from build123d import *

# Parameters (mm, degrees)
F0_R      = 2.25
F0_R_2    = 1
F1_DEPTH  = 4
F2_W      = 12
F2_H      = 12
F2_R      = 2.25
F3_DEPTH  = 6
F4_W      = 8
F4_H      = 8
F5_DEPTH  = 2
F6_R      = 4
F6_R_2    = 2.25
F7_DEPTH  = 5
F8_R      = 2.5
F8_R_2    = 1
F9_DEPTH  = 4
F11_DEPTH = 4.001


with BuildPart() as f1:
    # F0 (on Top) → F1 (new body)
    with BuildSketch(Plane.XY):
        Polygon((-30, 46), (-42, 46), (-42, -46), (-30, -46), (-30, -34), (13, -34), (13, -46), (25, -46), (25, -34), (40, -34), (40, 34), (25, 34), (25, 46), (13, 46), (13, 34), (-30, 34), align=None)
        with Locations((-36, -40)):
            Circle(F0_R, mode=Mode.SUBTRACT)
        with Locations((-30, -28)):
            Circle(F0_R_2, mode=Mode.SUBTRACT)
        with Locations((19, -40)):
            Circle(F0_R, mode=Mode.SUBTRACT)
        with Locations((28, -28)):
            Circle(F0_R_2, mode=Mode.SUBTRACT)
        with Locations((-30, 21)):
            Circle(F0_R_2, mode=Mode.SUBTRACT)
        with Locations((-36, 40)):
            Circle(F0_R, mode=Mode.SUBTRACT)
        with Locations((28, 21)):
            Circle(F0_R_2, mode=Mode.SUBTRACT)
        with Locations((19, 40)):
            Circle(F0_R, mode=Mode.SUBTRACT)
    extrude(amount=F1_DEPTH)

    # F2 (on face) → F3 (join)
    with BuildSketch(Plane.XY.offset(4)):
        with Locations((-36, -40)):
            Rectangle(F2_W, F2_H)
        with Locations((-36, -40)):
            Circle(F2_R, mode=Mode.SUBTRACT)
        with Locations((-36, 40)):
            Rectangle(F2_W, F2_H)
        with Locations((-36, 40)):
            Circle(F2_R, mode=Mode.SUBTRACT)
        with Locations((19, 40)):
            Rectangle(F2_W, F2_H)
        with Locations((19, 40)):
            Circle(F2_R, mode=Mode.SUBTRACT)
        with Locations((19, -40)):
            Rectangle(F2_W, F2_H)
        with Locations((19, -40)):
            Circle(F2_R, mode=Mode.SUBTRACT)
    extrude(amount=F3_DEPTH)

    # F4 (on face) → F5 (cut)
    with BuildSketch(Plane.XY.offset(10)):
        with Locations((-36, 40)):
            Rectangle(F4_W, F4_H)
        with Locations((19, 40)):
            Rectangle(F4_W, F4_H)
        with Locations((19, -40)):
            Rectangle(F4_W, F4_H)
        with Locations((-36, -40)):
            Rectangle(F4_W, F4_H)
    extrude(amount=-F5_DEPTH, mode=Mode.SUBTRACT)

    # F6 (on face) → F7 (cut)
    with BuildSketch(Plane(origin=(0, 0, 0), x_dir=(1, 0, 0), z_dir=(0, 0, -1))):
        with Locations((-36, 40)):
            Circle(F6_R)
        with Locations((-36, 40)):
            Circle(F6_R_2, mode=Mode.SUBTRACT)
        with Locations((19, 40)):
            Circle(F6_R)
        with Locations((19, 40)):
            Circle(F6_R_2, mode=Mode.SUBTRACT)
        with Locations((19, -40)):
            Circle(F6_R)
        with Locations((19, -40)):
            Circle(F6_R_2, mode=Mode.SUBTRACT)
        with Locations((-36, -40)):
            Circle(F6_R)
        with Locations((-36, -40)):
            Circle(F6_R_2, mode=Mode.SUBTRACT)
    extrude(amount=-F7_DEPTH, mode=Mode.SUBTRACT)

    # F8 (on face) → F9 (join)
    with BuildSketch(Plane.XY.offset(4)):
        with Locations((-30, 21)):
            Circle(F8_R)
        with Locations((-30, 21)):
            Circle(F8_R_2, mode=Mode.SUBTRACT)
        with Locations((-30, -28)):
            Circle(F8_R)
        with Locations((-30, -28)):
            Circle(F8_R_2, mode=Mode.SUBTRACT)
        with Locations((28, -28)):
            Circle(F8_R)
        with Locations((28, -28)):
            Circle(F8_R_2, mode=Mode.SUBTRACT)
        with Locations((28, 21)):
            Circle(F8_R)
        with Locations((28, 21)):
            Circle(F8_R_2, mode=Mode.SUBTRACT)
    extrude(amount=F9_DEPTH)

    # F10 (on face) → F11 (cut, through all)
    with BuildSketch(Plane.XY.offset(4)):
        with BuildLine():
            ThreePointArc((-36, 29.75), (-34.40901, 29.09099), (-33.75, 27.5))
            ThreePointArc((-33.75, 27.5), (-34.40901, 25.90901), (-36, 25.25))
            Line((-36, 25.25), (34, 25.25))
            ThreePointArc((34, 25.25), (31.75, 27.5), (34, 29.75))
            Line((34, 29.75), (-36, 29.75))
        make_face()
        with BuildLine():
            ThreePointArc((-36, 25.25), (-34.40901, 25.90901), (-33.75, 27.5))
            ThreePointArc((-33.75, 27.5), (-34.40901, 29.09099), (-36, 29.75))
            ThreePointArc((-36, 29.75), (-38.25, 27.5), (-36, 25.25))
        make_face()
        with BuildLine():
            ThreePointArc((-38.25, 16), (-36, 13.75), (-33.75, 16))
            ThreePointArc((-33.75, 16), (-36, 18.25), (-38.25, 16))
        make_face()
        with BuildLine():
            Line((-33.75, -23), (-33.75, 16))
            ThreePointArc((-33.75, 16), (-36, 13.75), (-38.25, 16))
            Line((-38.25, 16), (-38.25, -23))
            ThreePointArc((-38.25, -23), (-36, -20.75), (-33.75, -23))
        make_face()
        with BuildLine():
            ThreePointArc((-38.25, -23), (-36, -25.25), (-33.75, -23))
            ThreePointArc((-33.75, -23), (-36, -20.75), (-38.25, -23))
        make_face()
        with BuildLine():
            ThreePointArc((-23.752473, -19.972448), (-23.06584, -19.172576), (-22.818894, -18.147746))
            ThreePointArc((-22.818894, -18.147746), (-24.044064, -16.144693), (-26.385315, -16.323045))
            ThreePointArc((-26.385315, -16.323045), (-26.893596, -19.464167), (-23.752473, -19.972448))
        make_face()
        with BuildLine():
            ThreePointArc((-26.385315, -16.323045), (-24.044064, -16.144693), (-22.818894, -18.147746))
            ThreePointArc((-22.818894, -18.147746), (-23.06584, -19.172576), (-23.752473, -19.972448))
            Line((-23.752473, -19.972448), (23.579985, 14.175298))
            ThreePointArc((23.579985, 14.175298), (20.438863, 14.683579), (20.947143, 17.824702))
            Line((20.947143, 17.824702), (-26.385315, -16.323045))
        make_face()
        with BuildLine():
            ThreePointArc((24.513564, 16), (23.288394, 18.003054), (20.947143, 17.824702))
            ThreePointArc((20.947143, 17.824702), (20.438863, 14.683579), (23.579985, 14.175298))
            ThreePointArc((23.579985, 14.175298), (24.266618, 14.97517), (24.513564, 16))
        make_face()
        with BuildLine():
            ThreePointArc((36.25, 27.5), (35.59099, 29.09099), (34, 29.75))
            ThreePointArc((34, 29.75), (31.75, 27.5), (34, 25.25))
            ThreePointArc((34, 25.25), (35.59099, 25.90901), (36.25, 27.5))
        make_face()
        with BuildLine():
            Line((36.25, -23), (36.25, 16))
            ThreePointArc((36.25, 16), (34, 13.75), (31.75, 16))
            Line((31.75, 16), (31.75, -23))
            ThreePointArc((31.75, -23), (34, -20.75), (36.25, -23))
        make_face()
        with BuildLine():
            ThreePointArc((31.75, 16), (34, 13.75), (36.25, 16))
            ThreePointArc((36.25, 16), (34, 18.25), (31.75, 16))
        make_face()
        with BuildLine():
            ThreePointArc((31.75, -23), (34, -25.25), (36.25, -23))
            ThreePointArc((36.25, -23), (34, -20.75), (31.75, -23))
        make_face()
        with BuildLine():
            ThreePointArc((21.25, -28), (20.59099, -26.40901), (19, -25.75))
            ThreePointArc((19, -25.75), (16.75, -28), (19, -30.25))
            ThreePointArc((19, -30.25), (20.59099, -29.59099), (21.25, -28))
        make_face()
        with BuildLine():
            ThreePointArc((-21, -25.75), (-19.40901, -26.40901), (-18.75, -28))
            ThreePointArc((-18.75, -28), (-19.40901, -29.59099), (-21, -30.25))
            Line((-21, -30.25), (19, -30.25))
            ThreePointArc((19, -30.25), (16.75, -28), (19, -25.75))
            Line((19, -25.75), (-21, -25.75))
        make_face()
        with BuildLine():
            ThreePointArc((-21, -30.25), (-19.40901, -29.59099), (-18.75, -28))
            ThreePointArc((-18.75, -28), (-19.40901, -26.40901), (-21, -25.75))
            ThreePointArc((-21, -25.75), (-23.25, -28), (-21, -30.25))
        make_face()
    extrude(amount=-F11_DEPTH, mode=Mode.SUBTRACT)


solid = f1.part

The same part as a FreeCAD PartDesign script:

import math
import FreeCAD as App
import Part
import Sketcher


def add_polygon(sketch, points):
    """Adds a closed chain of lines whose ends are joined by coincident constraints."""
    first, n = sketch.GeometryCount, len(points)
    for a, b in zip(points, points[1:] + points[:1]):
        sketch.addGeometry(Part.LineSegment(App.Vector(*a, 0), App.Vector(*b, 0)), False)
    for i in range(n):
        sketch.addConstraint(Sketcher.Constraint("Coincident", first + i, 2, first + (i + 1) % n, 1))

doc = App.newDocument("Part")
body = doc.addObject("PartDesign::Body", "Body")

sketch1 = body.newObject("Sketcher::SketchObject", "Sketch")
sketch1.AttachmentSupport = (doc.getObject("XY_Plane"), [""])
sketch1.MapMode = "FlatFace"
add_polygon(sketch1, [(-30, 46), (-42, 46), (-42, -46), (-30, -46), (-30, -34), (13, -34), (13, -46), (25, -46), (25, -34), (40, -34), (40, 34), (25, 34), (25, 46), (13, 46), (13, 34), (-30, 34)])
sketch1.addGeometry(Part.Circle(App.Vector(-36, -40, 0), App.Vector(0, 0, 1), 2.2), False)
sketch1.addGeometry(Part.Circle(App.Vector(-30, -28, 0), App.Vector(0, 0, 1), 1), False)
sketch1.addGeometry(Part.Circle(App.Vector(19, -40, 0), App.Vector(0, 0, 1), 2.2), False)
sketch1.addGeometry(Part.Circle(App.Vector(28, -28, 0), App.Vector(0, 0, 1), 1), False)
sketch1.addGeometry(Part.Circle(App.Vector(-30, 21, 0), App.Vector(0, 0, 1), 1), False)
sketch1.addGeometry(Part.Circle(App.Vector(-36, 40, 0), App.Vector(0, 0, 1), 2.2), False)
sketch1.addGeometry(Part.Circle(App.Vector(28, 21, 0), App.Vector(0, 0, 1), 1), False)
sketch1.addGeometry(Part.Circle(App.Vector(19, 40, 0), App.Vector(0, 0, 1), 2.2), False)
sketch1.addConstraint([
    Sketcher.Constraint("Horizontal", 0),
    Sketcher.Constraint("Vertical", 1),
    Sketcher.Constraint("Horizontal", 2),
    Sketcher.Constraint("Vertical", 3),
    Sketcher.Constraint("Horizontal", 4),
    Sketcher.Constraint("Vertical", 5),
    Sketcher.Constraint("Horizontal", 6),
    Sketcher.Constraint("Vertical", 7),
    Sketcher.Constraint("Horizontal", 8),
    Sketcher.Constraint("Vertical", 9),
    Sketcher.Constraint("Horizontal", 10),
    Sketcher.Constraint("Vertical", 11),
    Sketcher.Constraint("Horizontal", 12),
    Sketcher.Constraint("Vertical", 13),
    Sketcher.Constraint("Horizontal", 14),
    Sketcher.Constraint("Vertical", 15),
    Sketcher.Constraint("Equal", 16, 18),
    Sketcher.Constraint("Equal", 17, 19),
    Sketcher.Constraint("Equal", 19, 20),
    Sketcher.Constraint("Equal", 18, 21),
    Sketcher.Constraint("Equal", 20, 22),
    Sketcher.Constraint("Equal", 21, 23),
    Sketcher.Constraint("Symmetric", 16, 3, 21, 3, -1),
    Sketcher.Constraint("Symmetric", 18, 3, 23, 3, -1),
    Sketcher.Constraint("Symmetric", 7, 2, 10, 2, -1),
    Sketcher.Constraint("Symmetric", 5, 2, 12, 2, -1),
    Sketcher.Constraint("Symmetric", 3, 2, 14, 2, -1),
    Sketcher.Constraint("Horizontal", 16, 3, 18, 3),
    Sketcher.Constraint("Horizontal", 17, 3, 19, 3),
    Sketcher.Constraint("Horizontal", 20, 3, 22, 3),
    Sketcher.Constraint("Horizontal", 2, 2, 5, 2),
    Sketcher.Constraint("Horizontal", 4, 2, 7, 2),
    Sketcher.Constraint("Horizontal", 0, 2, 11, 2),
    Sketcher.Constraint("Vertical", 17, 3, 20, 3),
    Sketcher.Constraint("Vertical", 19, 3, 22, 3),
    Sketcher.Constraint("Vertical", 20, 3, 2, 2),
    Sketcher.Constraint("Equal", 2, 6),
    Sketcher.Constraint("Equal", 12, 3),
    Sketcher.Constraint("Diameter", 17, 2.0),
    Sketcher.Constraint("Diameter", 16, 4.5),
    Sketcher.Constraint("DistanceX", 0, 2, 0, 1, 12.0),
    Sketcher.Constraint("DistanceX", 4, 1, 4, 2, 43.0),
    Sketcher.Constraint("DistanceX", 8, 1, 8, 2, 15.0),
    Sketcher.Constraint("DistanceY", 1, 2, 1, 1, 92.0),
    Sketcher.Constraint("DistanceX", 16, 3, -1, 1, 36.0),
    Sketcher.Constraint("DistanceY", 16, 3, -1, 1, 40.0),
    Sketcher.Constraint("DistanceX", 17, 3, -1, 1, 30.0),
    Sketcher.Constraint("DistanceY", 17, 3, -1, 1, 28.0),
    Sketcher.Constraint("DistanceX", -1, 1, 18, 3, 19.0),
    Sketcher.Constraint("DistanceX", -1, 1, 19, 3, 28.0),
    Sketcher.Constraint("DistanceY", -1, 1, 20, 3, 21.0),
])
pad1 = body.newObject("PartDesign::Pad", "Pad")
pad1.Profile = sketch1
pad1.Length = 4

sketch2 = body.newObject("Sketcher::SketchObject", "Sketch001")
sketch2.AttachmentSupport = (doc.getObject("XY_Plane"), [""])
sketch2.MapMode = "FlatFace"
sketch2.AttachmentOffset = App.Placement(App.Vector(0, 0, 4), App.Rotation())
add_polygon(sketch2, [(-42, -34), (-42, -46), (-30, -46), (-30, -34)])
sketch2.addGeometry(Part.Circle(App.Vector(-36, -40, 0), App.Vector(0, 0, 1), 2.2), False)
add_polygon(sketch2, [(-42, 46), (-42, 34), (-30, 34), (-30, 46)])
sketch2.addGeometry(Part.Circle(App.Vector(-36, 40, 0), App.Vector(0, 0, 1), 2.2), False)
add_polygon(sketch2, [(13, 46), (13, 34), (25, 34), (25, 46)])
sketch2.addGeometry(Part.Circle(App.Vector(19, 40, 0), App.Vector(0, 0, 1), 2.2), False)
add_polygon(sketch2, [(13, -34), (13, -46), (25, -46), (25, -34)])
sketch2.addGeometry(Part.Circle(App.Vector(19, -40, 0), App.Vector(0, 0, 1), 2.2), False)
sketch2.addConstraint([
    Sketcher.Constraint("Vertical", 0),
    Sketcher.Constraint("Horizontal", 1),
    Sketcher.Constraint("Vertical", 2),
    Sketcher.Constraint("Horizontal", 3),
    Sketcher.Constraint("Vertical", 5),
    Sketcher.Constraint("Horizontal", 6),
    Sketcher.Constraint("Vertical", 7),
    Sketcher.Constraint("Horizontal", 8),
    Sketcher.Constraint("Vertical", 10),
    Sketcher.Constraint("Horizontal", 11),
    Sketcher.Constraint("Vertical", 12),
    Sketcher.Constraint("Horizontal", 13),
    Sketcher.Constraint("Vertical", 15),
    Sketcher.Constraint("Horizontal", 16),
    Sketcher.Constraint("Vertical", 17),
    Sketcher.Constraint("Horizontal", 18),
    Sketcher.Constraint("Equal", 4, 9),
    Sketcher.Constraint("Equal", 9, 14),
    Sketcher.Constraint("Equal", 14, 19),
    Sketcher.Constraint("Symmetric", 4, 3, 9, 3, -1),
    Sketcher.Constraint("Symmetric", 14, 3, 19, 3, -1),
    Sketcher.Constraint("Symmetric", 3, 2, 5, 2, -1),
    Sketcher.Constraint("Symmetric", 1, 2, 7, 2, -1),
    Sketcher.Constraint("Symmetric", 13, 2, 15, 2, -1),
    Sketcher.Constraint("Symmetric", 11, 2, 17, 2, -1),
    Sketcher.Constraint("Horizontal", 9, 3, 14, 3),
    Sketcher.Constraint("Horizontal", 6, 2, 10, 2),
    Sketcher.Constraint("Horizontal", 8, 2, 12, 2),
    Sketcher.Constraint("Equal", 8, 11),
    Sketcher.Constraint("Equal", 18, 0),
    Sketcher.Constraint("Diameter", 4, 4.5),
    Sketcher.Constraint("DistanceX", 1, 1, 1, 2, 12.0),
    Sketcher.Constraint("DistanceX", 4, 3, -1, 1, 36.0),
    Sketcher.Constraint("DistanceY", 4, 3, -1, 1, 40.0),
    Sketcher.Constraint("DistanceX", -1, 1, 14, 3, 19.0),
    Sketcher.Constraint("DistanceX", 0, 2, -1, 1, 42.0),
    Sketcher.Constraint("DistanceY", 0, 2, -1, 1, 46.0),
    Sketcher.Constraint("DistanceX", -1, 1, 10, 2, 13.0),
])
pad2 = body.newObject("PartDesign::Pad", "Pad001")
pad2.Profile = sketch2
pad2.Length = 6

sketch3 = body.newObject("Sketcher::SketchObject", "Sketch002")
sketch3.AttachmentSupport = (doc.getObject("XY_Plane"), [""])
sketch3.MapMode = "FlatFace"
sketch3.AttachmentOffset = App.Placement(App.Vector(0, 0, 10), App.Rotation())
add_polygon(sketch3, [(-40, 44), (-40, 36), (-32, 36), (-32, 44)])
add_polygon(sketch3, [(15, 44), (15, 36), (23, 36), (23, 44)])
add_polygon(sketch3, [(15, -36), (15, -44), (23, -44), (23, -36)])
add_polygon(sketch3, [(-40, -36), (-40, -44), (-32, -44), (-32, -36)])
sketch3.addConstraint([
    Sketcher.Constraint("Vertical", 0),
    Sketcher.Constraint("Horizontal", 1),
    Sketcher.Constraint("Vertical", 2),
    Sketcher.Constraint("Horizontal", 3),
    Sketcher.Constraint("Vertical", 4),
    Sketcher.Constraint("Horizontal", 5),
    Sketcher.Constraint("Vertical", 6),
    Sketcher.Constraint("Horizontal", 7),
    Sketcher.Constraint("Vertical", 8),
    Sketcher.Constraint("Horizontal", 9),
    Sketcher.Constraint("Vertical", 10),
    Sketcher.Constraint("Horizontal", 11),
    Sketcher.Constraint("Vertical", 12),
    Sketcher.Constraint("Horizontal", 13),
    Sketcher.Constraint("Vertical", 14),
    Sketcher.Constraint("Horizontal", 15),
    Sketcher.Constraint("Symmetric", 7, 2, 8, 2, -1),
    Sketcher.Constraint("Symmetric", 5, 2, 10, 2, -1),
    Sketcher.Constraint("Symmetric", 3, 2, 12, 2, -1),
    Sketcher.Constraint("Symmetric", 1, 2, 14, 2, -1),
    Sketcher.Constraint("Horizontal", 1, 2, 4, 2),
    Sketcher.Constraint("Horizontal", 3, 2, 6, 2),
    Sketcher.Constraint("Equal", 3, 5),
    Sketcher.Constraint("Equal", 15, 0),
    Sketcher.Constraint("DistanceX", 1, 1, 1, 2, 8.0),
    Sketcher.Constraint("DistanceX", 0, 2, -1, 1, 40.0),
    Sketcher.Constraint("DistanceY", -1, 1, 0, 2, 36.0),
    Sketcher.Constraint("DistanceX", -1, 1, 4, 2, 15.0),
])
pocket1 = body.newObject("PartDesign::Pocket", "Pocket")
pocket1.Profile = sketch3
pocket1.Length = 2

sketch4 = body.newObject("Sketcher::SketchObject", "Sketch003")
sketch4.AttachmentSupport = (doc.getObject("XY_Plane"), [""])
sketch4.MapMode = "FlatFace"
sketch4.addGeometry([
    Part.Circle(App.Vector(-36, -40, 0), App.Vector(0, 0, 1), 4),
    Part.Circle(App.Vector(-36, -40, 0), App.Vector(0, 0, 1), 2.2),
    Part.Circle(App.Vector(19, -40, 0), App.Vector(0, 0, 1), 4),
    Part.Circle(App.Vector(19, -40, 0), App.Vector(0, 0, 1), 2.2),
    Part.Circle(App.Vector(19, 40, 0), App.Vector(0, 0, 1), 4),
    Part.Circle(App.Vector(19, 40, 0), App.Vector(0, 0, 1), 2.2),
    Part.Circle(App.Vector(-36, 40, 0), App.Vector(0, 0, 1), 4),
    Part.Circle(App.Vector(-36, 40, 0), App.Vector(0, 0, 1), 2.2),
], False)
sketch4.addConstraint([
    Sketcher.Constraint("Coincident", 1, 3, 0, 3),
    Sketcher.Constraint("Coincident", 3, 3, 2, 3),
    Sketcher.Constraint("Coincident", 5, 3, 4, 3),
    Sketcher.Constraint("Coincident", 7, 3, 6, 3),
    Sketcher.Constraint("Equal", 0, 2),
    Sketcher.Constraint("Equal", 1, 3),
    Sketcher.Constraint("Equal", 2, 4),
    Sketcher.Constraint("Equal", 3, 5),
    Sketcher.Constraint("Equal", 4, 6),
    Sketcher.Constraint("Equal", 5, 7),
    Sketcher.Constraint("Symmetric", 2, 3, 4, 3, -1),
    Sketcher.Constraint("Symmetric", 0, 3, 6, 3, -1),
    Sketcher.Constraint("Horizontal", 1, 3, 2, 3),
    Sketcher.Constraint("Diameter", 0, 8.0),
    Sketcher.Constraint("Diameter", 1, 4.5),
    Sketcher.Constraint("DistanceX", 0, 3, -1, 1, 36.0),
    Sketcher.Constraint("DistanceY", 0, 3, -1, 1, 40.0),
    Sketcher.Constraint("DistanceX", -1, 1, 2, 3, 19.0),
])
pocket2 = body.newObject("PartDesign::Pocket", "Pocket001")
pocket2.Profile = sketch4
pocket2.Length = 5
pocket2.Reversed = True

sketch5 = body.newObject("Sketcher::SketchObject", "Sketch004")
sketch5.AttachmentSupport = (doc.getObject("XY_Plane"), [""])
sketch5.MapMode = "FlatFace"
sketch5.AttachmentOffset = App.Placement(App.Vector(0, 0, 4), App.Rotation())
sketch5.addGeometry([
    Part.Circle(App.Vector(-30, 21, 0), App.Vector(0, 0, 1), 2.5),
    Part.Circle(App.Vector(-30, 21, 0), App.Vector(0, 0, 1), 1),
    Part.Circle(App.Vector(-30, -28, 0), App.Vector(0, 0, 1), 2.5),
    Part.Circle(App.Vector(-30, -28, 0), App.Vector(0, 0, 1), 1),
    Part.Circle(App.Vector(28, -28, 0), App.Vector(0, 0, 1), 2.5),
    Part.Circle(App.Vector(28, -28, 0), App.Vector(0, 0, 1), 1),
    Part.Circle(App.Vector(28, 21, 0), App.Vector(0, 0, 1), 2.5),
    Part.Circle(App.Vector(28, 21, 0), App.Vector(0, 0, 1), 1),
], False)
sketch5.addConstraint([
    Sketcher.Constraint("Coincident", 1, 3, 0, 3),
    Sketcher.Constraint("Coincident", 3, 3, 2, 3),
    Sketcher.Constraint("Coincident", 5, 3, 4, 3),
    Sketcher.Constraint("Coincident", 7, 3, 6, 3),
    Sketcher.Constraint("Equal", 0, 2),
    Sketcher.Constraint("Equal", 1, 3),
    Sketcher.Constraint("Equal", 2, 4),
    Sketcher.Constraint("Equal", 3, 5),
    Sketcher.Constraint("Equal", 4, 6),
    Sketcher.Constraint("Equal", 5, 7),
    Sketcher.Constraint("Horizontal", 3, 3, 4, 3),
    Sketcher.Constraint("Horizontal", 1, 3, 6, 3),
    Sketcher.Constraint("Vertical", 1, 3, 2, 3),
    Sketcher.Constraint("Vertical", 5, 3, 6, 3),
    Sketcher.Constraint("Diameter", 0, 5.0),
    Sketcher.Constraint("Diameter", 1, 2.0),
    Sketcher.Constraint("DistanceX", 0, 3, -1, 1, 30.0),
    Sketcher.Constraint("DistanceY", -1, 1, 0, 3, 21.0),
    Sketcher.Constraint("DistanceY", 2, 3, -1, 1, 28.0),
    Sketcher.Constraint("DistanceX", -1, 1, 4, 3, 28.0),
])
pad3 = body.newObject("PartDesign::Pad", "Pad002")
pad3.Profile = sketch5
pad3.Length = 4

sketch6 = body.newObject("Sketcher::SketchObject", "Sketch005")
sketch6.AttachmentSupport = (doc.getObject("XY_Plane"), [""])
sketch6.MapMode = "FlatFace"
sketch6.AttachmentOffset = App.Placement(App.Vector(0, 0, 4), App.Rotation())
sketch6.addGeometry([
    Part.LineSegment(App.Vector(-36, 25.2, 0), App.Vector(34, 25.2, 0)),
    Part.ArcOfCircle(Part.Circle(App.Vector(34, 27.5, 0), App.Vector(0, 0, 1), 2.3), math.radians(-90), math.radians(0)),
    Part.ArcOfCircle(Part.Circle(App.Vector(34, 27.5, 0), App.Vector(0, 0, 1), 2.3), math.radians(0), math.radians(90)),
    Part.LineSegment(App.Vector(34, 29.8, 0), App.Vector(-36, 29.8, 0)),
    Part.ArcOfCircle(Part.Circle(App.Vector(-36, 27.5, 0), App.Vector(0, 0, 1), 2.2), math.radians(90), math.radians(270)),
    Part.ArcOfCircle(Part.Circle(App.Vector(-36, 16, 0), App.Vector(0, 0, 1), 2.2), math.radians(0), math.radians(180)),
    Part.LineSegment(App.Vector(-38.2, 16, 0), App.Vector(-38.2, -23, 0)),
    Part.ArcOfCircle(Part.Circle(App.Vector(-36, -23, 0), App.Vector(0, 0, 1), 2.2), math.radians(180), math.radians(360)),
    Part.LineSegment(App.Vector(-33.8, -23, 0), App.Vector(-33.8, 16, 0)),
    Part.ArcOfCircle(Part.Circle(App.Vector(-25.1, -18.1, 0), App.Vector(0, 0, 1), 2.2), math.radians(126), math.radians(306)),
    Part.LineSegment(App.Vector(-23.8, -20, 0), App.Vector(23.6, 14.2, 0)),
    Part.ArcOfCircle(Part.Circle(App.Vector(22.3, 16, 0), App.Vector(0, 0, 1), 2.2), math.radians(-54), math.radians(0)),
    Part.ArcOfCircle(Part.Circle(App.Vector(22.3, 16, 0), App.Vector(0, 0, 1), 2.2), math.radians(0), math.radians(126)),
    Part.LineSegment(App.Vector(20.9, 17.8, 0), App.Vector(-26.4, -16.3, 0)),
    Part.LineSegment(App.Vector(36.2, -23, 0), App.Vector(36.2, 16, 0)),
    Part.ArcOfCircle(Part.Circle(App.Vector(34, 16, 0), App.Vector(0, 0, 1), 2.2), math.radians(0), math.radians(180)),
    Part.LineSegment(App.Vector(31.8, 16, 0), App.Vector(31.8, -23, 0)),
    Part.ArcOfCircle(Part.Circle(App.Vector(34, -23, 0), App.Vector(0, 0, 1), 2.2), math.radians(180), math.radians(360)),
    Part.ArcOfCircle(Part.Circle(App.Vector(19, -28, 0), App.Vector(0, 0, 1), 2.3), math.radians(0), math.radians(90)),
    Part.LineSegment(App.Vector(19, -25.8, 0), App.Vector(-21, -25.8, 0)),
    Part.ArcOfCircle(Part.Circle(App.Vector(-21, -28, 0), App.Vector(0, 0, 1), 2.2), math.radians(90), math.radians(270)),
    Part.LineSegment(App.Vector(-21, -30.2, 0), App.Vector(19, -30.2, 0)),
    Part.ArcOfCircle(Part.Circle(App.Vector(19, -28, 0), App.Vector(0, 0, 1), 2.3), math.radians(-90), math.radians(0)),
], False)
sketch6.addConstraint([
    Sketcher.Constraint("Tangent", 0, 2, 1, 1),
    Sketcher.Constraint("Tangent", 1, 2, 2, 1),
    Sketcher.Constraint("Tangent", 2, 2, 3, 1),
    Sketcher.Constraint("Tangent", 3, 2, 4, 1),
    Sketcher.Constraint("Tangent", 4, 2, 0, 1),
    Sketcher.Constraint("Tangent", 5, 2, 6, 1),
    Sketcher.Constraint("Tangent", 6, 2, 7, 1),
    Sketcher.Constraint("Tangent", 7, 2, 8, 1),
    Sketcher.Constraint("Tangent", 8, 2, 5, 1),
    Sketcher.Constraint("Tangent", 9, 2, 10, 1),
    Sketcher.Constraint("Tangent", 10, 2, 11, 1),
    Sketcher.Constraint("Tangent", 11, 2, 12, 1),
    Sketcher.Constraint("Tangent", 12, 2, 13, 1),
    Sketcher.Constraint("Tangent", 13, 2, 9, 1),
    Sketcher.Constraint("Tangent", 14, 2, 15, 1),
    Sketcher.Constraint("Tangent", 15, 2, 16, 1),
    Sketcher.Constraint("Tangent", 16, 2, 17, 1),
    Sketcher.Constraint("Tangent", 17, 2, 14, 1),
    Sketcher.Constraint("Tangent", 18, 2, 19, 1),
    Sketcher.Constraint("Tangent", 19, 2, 20, 1),
    Sketcher.Constraint("Tangent", 20, 2, 21, 1),
    Sketcher.Constraint("Tangent", 21, 2, 22, 1),
    Sketcher.Constraint("Tangent", 22, 2, 18, 1),
    Sketcher.Constraint("Horizontal", 0),
    Sketcher.Constraint("Horizontal", 3),
    Sketcher.Constraint("Vertical", 6),
    Sketcher.Constraint("Vertical", 8),
    Sketcher.Constraint("Vertical", 14),
    Sketcher.Constraint("Vertical", 16),
    Sketcher.Constraint("Horizontal", 19),
    Sketcher.Constraint("Horizontal", 21),
    Sketcher.Constraint("Equal", 1, 2),
    Sketcher.Constraint("Equal", 4, 5),
    Sketcher.Constraint("Equal", 7, 9),
    Sketcher.Constraint("Equal", 9, 11),
    Sketcher.Constraint("Equal", 11, 12),
    Sketcher.Constraint("Equal", 12, 15),
    Sketcher.Constraint("Equal", 17, 18),
    Sketcher.Constraint("Equal", 18, 20),
    Sketcher.Constraint("Horizontal", 5, 3, 11, 3),
    Sketcher.Constraint("Horizontal", 12, 3, 15, 3),
    Sketcher.Constraint("Horizontal", 7, 3, 17, 3),
    Sketcher.Constraint("Horizontal", 4, 3, 1, 2),
    Sketcher.Constraint("Horizontal", 8, 2, 11, 2),
    Sketcher.Constraint("Horizontal", 20, 3, 22, 2),
    Sketcher.Constraint("Vertical", 4, 3, 5, 3),
    Sketcher.Constraint("Vertical", 2, 3, 15, 3),
    Sketcher.Constraint("DistanceX", 0, 1, 0, 2, 70.0),
    Sketcher.Constraint("DistanceX", 19, 2, 19, 1, 40.0),
    Sketcher.Constraint("DistanceY", 6, 2, 6, 1, 39.0),
    Sketcher.Constraint("Radius", 1, 2.250001),
    Sketcher.Constraint("DistanceX", -1, 1, 1, 3, 33.999999),
    Sketcher.Constraint("DistanceY", -1, 1, 5, 3, 16.0),
    Sketcher.Constraint("DistanceX", -1, 1, 18, 3, 18.999999),
    Sketcher.Constraint("DistanceY", 18, 3, -1, 1, 28.000001),
    Sketcher.Constraint("DistanceY", -1, 1, 1, 3, 27.500001),
    Sketcher.Constraint("DistanceY", -1, 1, 12, 2, 17.824702),
    Sketcher.Constraint("Distance", 10, 58.364631),
    Sketcher.Constraint("DistanceX", 9, 3, -1, 1, 25.068894),
])
pocket3 = body.newObject("PartDesign::Pocket", "Pocket002")
pocket3.Profile = sketch6
pocket3.Type = "ThroughAll"

doc.recompute()
